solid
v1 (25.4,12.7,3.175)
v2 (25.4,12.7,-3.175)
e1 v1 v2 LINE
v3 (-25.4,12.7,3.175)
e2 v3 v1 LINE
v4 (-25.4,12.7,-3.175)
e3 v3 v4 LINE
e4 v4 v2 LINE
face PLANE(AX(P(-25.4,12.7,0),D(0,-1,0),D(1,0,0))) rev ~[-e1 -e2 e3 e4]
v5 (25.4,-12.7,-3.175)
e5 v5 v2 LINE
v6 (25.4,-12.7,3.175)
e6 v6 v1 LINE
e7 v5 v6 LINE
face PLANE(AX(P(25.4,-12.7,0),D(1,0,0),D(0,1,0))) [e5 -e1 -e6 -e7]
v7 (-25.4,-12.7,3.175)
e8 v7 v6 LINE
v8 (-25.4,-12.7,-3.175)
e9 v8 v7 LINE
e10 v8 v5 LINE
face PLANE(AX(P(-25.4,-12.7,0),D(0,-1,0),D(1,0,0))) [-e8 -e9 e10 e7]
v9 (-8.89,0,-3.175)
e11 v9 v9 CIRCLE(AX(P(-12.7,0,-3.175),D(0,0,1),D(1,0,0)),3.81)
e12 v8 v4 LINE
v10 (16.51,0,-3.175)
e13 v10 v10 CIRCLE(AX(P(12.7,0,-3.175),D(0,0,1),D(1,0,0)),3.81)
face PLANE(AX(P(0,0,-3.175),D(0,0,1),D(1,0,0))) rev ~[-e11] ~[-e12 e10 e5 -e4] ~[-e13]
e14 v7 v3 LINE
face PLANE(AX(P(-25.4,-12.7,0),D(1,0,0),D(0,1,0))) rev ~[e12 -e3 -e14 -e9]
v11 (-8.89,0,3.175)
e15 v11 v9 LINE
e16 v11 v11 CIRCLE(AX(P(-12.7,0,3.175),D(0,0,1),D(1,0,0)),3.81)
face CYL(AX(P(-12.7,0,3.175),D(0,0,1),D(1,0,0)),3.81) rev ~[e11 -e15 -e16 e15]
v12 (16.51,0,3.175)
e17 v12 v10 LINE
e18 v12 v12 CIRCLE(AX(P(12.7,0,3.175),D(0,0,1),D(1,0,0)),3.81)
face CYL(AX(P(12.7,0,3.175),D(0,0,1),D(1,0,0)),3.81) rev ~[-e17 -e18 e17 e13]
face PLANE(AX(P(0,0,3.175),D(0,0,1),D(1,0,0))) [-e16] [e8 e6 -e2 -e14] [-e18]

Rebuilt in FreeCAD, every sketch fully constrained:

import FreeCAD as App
import Part
import Sketcher
from FreeCAD import Vector
Q = App.Units.Quantity


def add_polygon(sketch, points):
    """Adds a closed chain of lines whose ends are joined by coincident constraints."""
    first, n = sketch.GeometryCount, len(points)
    for a, b in zip(points, points[1:] + points[:1]):
        sketch.addGeometry(Part.LineSegment(App.Vector(*a, 0), App.Vector(*b, 0)), False)
    for i in range(n):
        sketch.addConstraint(Sketcher.Constraint("Coincident", first + i, 2, first + (i + 1) % n, 1))

doc = App.newDocument("Part")
body = doc.addObject("PartDesign::Body", "Body")

# Sketch on XY plane
sketch1 = body.newObject("Sketcher::SketchObject", "Sketch")
sketch1.AttachmentSupport = (doc.getObject("XY_Plane"), [""])
sketch1.MapMode = "FlatFace"
add_polygon(sketch1, [(-25, 13), (-25, -13), (25, -13), (25, 13)])  # lines 0-3
sketch1.addConstraint([
    Sketcher.Constraint("Vertical", 0),
    Sketcher.Constraint("Horizontal", 1),
    Sketcher.Constraint("Vertical", 2),
    Sketcher.Constraint("Horizontal", 3),
    Sketcher.Constraint("Symmetric", 0, 2, 2, 2, -1, 1),
    Sketcher.Constraint("DistanceX", 1, 1, 1, 2, Q("2 in")),
    Sketcher.Constraint("DistanceY", 0, 2, 0, 1, Q("1 in")),
])
pad1 = body.newObject("PartDesign::Pad", "Pad")
pad1.Profile = sketch1
pad1.Length = Q("0.25 in")
pad1.Midplane = True

# Sketch on XY plane
sketch2 = body.newObject("Sketcher::SketchObject", "Sketch001")
sketch2.AttachmentSupport = (doc.getObject("XY_Plane"), [""])
sketch2.MapMode = "FlatFace"
sketch2.AttachmentOffset = App.Placement(Vector(0, 0, 0.125 * 25.4), App.Rotation())
sketch2.addGeometry([
    Part.Circle(Vector(-12.7, 0, 0), Vector(0, 0, 1), 3.8),
    Part.Circle(Vector(12.7, 0, 0), Vector(0, 0, 1), 3.8),
], False)
sketch2.addConstraint([
    Sketcher.Constraint("Equal", 0, 1),
    Sketcher.Constraint("Symmetric", 0, 3, 1, 3, -1, 1),
    Sketcher.Constraint("PointOnObject", 0, 3, -1),
    Sketcher.Constraint("Diameter", 0, Q("0.3 in")),
    Sketcher.Constraint("DistanceX", 0, 3, 1, 3, Q("1 in")),
])
pocket1 = body.newObject("PartDesign::Pocket", "Pocket")
pocket1.Profile = sketch2
pocket1.Length = Q("1 in")

doc.recompute()
